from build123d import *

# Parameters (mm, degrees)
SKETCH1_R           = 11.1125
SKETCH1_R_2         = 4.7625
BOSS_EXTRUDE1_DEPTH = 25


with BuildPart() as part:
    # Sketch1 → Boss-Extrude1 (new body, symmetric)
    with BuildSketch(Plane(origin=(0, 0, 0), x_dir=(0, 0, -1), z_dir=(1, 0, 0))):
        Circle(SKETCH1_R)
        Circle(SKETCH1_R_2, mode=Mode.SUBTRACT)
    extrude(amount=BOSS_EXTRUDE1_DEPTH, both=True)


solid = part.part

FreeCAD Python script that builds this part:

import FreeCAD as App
import Part
import Sketcher

V = App.Vector
Q = App.Units.Quantity

doc = App.newDocument("Part")
params = doc.addObject("Spreadsheet::Sheet", "Params")
for row, (alias, value) in enumerate([
    ("sketch1_diameter", "0.875 in"),
    ("sketch1_diameter2", "0.375 in"),
    ("pad1_length", "50 mm"),
], start=1):
    params.set(f"A{row}", alias)
    params.set(f"B{row}", "=" + value)
    params.setAlias(f"B{row}", alias)

body = doc.addObject("PartDesign::Body", "Body")

# Sketch on YZ plane
sketch1 = body.newObject("Sketcher::SketchObject", "Sketch")
sketch1.AttachmentSupport = (doc.getObject("YZ_Plane"), [""])
sketch1.MapMode = "FlatFace"
sketch1.addGeometry(Part.Circle(V(0, 0, 0), V(0, 0, 1), 11.1), False)
sketch1.addGeometry(Part.Circle(V(0, 0, 0), V(0, 0, 1), 4.8), False)
sketch1.addConstraint(Sketcher.Constraint("Coincident", 0, 3, -1, 1))
sketch1.addConstraint(Sketcher.Constraint("Coincident", 1, 3, -1, 1))
sketch1.addConstraint(Sketcher.Constraint("Diameter", 0, Q("0.875 in")))
sketch1.addConstraint(Sketcher.Constraint("Diameter", 1, Q("0.375 in")))
sketch1.setExpression("Constraints[2]", "Params.sketch1_diameter")
sketch1.setExpression("Constraints[3]", "Params.sketch1_diameter2")
pad1 = body.newObject("PartDesign::Pad", "Pad")
pad1.Profile = sketch1
pad1.setExpression("Length", "Params.pad1_length")
pad1.Midplane = True

doc.recompute()
